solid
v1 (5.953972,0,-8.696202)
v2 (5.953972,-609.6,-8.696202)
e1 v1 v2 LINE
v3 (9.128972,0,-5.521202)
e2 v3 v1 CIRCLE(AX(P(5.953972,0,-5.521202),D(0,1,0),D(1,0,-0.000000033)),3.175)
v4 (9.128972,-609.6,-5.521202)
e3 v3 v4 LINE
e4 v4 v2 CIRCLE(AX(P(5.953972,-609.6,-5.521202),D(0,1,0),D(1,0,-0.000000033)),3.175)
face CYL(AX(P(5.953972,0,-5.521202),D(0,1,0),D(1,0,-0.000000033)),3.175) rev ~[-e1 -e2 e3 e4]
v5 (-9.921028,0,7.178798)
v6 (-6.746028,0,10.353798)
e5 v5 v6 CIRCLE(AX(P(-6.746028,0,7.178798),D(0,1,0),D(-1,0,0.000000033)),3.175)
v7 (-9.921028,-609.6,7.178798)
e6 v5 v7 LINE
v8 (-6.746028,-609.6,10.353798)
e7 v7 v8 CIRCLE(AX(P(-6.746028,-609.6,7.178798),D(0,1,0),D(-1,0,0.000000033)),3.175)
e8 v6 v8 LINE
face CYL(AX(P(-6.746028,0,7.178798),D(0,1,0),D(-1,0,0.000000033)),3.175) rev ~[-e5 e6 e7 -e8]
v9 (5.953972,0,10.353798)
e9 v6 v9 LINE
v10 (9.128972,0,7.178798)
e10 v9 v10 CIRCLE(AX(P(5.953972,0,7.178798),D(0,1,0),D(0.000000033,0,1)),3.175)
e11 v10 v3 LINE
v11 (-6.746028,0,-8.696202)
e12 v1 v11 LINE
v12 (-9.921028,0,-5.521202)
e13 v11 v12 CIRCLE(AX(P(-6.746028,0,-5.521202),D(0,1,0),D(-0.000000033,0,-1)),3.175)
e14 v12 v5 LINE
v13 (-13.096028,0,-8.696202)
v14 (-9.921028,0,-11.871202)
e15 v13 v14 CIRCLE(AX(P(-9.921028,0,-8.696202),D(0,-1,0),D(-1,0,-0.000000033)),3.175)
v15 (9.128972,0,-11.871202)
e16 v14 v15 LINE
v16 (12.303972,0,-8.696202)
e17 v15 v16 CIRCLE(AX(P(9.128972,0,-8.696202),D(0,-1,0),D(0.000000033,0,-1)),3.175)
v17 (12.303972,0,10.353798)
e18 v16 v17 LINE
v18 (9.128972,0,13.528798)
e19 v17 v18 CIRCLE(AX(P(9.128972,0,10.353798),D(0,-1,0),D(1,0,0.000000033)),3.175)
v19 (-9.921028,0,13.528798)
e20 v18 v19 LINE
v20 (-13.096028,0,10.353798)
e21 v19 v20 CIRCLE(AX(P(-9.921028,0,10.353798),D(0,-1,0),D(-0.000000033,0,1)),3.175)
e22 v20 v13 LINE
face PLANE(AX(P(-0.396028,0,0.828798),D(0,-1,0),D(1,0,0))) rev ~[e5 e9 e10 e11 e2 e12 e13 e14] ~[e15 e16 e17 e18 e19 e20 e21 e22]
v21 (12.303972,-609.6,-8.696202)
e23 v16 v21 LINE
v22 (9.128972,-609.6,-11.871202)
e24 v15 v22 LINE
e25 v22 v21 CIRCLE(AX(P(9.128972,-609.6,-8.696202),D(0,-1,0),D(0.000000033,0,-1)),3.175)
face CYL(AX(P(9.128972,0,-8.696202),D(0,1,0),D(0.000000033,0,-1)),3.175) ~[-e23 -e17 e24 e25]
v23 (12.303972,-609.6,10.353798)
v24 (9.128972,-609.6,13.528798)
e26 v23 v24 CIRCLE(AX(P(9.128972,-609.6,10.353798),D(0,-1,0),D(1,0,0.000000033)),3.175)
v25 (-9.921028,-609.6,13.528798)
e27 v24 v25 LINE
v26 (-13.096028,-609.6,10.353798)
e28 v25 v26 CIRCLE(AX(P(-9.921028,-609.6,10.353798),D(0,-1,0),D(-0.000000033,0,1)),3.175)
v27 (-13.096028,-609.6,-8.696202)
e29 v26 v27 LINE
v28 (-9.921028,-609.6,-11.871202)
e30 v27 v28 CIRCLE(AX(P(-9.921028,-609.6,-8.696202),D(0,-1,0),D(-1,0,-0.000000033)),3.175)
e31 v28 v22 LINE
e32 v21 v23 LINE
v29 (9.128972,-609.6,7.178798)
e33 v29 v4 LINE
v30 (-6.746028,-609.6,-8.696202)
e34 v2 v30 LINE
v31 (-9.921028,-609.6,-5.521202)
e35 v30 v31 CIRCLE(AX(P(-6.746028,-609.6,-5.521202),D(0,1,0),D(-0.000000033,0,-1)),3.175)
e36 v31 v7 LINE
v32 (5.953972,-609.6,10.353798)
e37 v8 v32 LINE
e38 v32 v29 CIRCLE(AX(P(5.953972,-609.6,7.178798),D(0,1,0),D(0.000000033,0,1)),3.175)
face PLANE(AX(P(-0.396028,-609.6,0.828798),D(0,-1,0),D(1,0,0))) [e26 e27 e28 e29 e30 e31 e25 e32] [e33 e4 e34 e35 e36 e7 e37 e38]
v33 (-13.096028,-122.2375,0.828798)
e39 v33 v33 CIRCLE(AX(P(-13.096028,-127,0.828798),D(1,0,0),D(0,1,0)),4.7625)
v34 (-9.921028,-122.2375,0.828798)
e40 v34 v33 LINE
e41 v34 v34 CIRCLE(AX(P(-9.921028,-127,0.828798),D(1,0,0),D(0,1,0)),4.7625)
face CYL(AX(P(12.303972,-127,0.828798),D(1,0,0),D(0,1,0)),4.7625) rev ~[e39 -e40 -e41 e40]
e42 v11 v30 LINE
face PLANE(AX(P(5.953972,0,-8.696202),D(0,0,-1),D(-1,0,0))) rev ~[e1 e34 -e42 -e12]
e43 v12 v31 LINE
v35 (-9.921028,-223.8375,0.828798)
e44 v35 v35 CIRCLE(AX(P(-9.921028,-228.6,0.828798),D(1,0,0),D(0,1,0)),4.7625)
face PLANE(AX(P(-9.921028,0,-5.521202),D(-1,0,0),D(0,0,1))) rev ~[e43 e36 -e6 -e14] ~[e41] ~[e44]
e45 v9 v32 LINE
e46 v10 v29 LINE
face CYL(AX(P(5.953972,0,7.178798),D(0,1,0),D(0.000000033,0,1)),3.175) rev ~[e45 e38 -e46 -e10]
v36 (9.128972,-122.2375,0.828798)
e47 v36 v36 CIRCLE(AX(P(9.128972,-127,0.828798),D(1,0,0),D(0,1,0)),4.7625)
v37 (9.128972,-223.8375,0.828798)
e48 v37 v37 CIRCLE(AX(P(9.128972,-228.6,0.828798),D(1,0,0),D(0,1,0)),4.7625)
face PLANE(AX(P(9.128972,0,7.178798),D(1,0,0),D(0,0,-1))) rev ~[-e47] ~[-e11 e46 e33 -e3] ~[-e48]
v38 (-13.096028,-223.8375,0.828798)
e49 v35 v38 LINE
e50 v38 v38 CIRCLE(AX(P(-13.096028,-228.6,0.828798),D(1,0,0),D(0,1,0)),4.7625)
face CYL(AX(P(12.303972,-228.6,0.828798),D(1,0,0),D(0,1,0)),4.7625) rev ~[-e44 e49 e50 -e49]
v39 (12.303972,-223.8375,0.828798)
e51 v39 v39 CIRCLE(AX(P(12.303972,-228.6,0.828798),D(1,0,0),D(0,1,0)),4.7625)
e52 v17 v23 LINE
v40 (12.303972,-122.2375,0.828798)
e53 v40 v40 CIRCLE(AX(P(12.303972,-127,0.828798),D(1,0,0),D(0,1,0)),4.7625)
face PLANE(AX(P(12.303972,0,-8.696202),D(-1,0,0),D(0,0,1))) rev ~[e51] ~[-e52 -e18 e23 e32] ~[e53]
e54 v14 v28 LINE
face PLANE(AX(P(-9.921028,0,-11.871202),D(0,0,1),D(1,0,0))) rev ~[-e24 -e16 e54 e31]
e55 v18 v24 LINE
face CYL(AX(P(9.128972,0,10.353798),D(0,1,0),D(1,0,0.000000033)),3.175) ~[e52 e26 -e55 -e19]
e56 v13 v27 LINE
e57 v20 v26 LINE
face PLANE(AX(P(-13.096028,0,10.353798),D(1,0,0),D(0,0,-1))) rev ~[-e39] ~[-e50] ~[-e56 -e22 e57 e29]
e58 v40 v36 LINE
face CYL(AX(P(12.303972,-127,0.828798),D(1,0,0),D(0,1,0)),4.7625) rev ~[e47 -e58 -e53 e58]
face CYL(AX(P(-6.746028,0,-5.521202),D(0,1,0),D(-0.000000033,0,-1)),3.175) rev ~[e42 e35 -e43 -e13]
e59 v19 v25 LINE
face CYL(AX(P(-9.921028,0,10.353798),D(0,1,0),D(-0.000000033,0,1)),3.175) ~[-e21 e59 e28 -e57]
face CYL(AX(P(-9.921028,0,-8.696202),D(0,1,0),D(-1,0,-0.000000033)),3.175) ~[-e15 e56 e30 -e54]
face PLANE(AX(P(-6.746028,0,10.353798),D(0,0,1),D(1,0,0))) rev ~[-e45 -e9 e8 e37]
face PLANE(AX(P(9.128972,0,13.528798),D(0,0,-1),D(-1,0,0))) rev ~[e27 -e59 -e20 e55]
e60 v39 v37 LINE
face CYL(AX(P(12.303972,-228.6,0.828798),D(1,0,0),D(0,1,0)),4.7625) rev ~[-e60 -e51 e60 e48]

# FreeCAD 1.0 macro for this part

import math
import FreeCAD as App
import Part
import Sketcher
from FreeCAD import Vector
Q = App.Units.Quantity

doc = App.newDocument("Part")
body = doc.addObject("PartDesign::Body", "Body")

# Sketch on XZ plane
sketch1 = doc.addObject("Sketcher::SketchObject", "Sketch")
body.addObject(sketch1)
sketch1.AttachmentSupport = (doc.XZ_Plane, [""])
sketch1.MapMode = "FlatFace"
sketch1.addGeometry(Part.LineSegment(Vector(-9.9, -11.9, 0), Vector(9.1, -11.9, 0)), False)
sketch1.addGeometry(Part.ArcOfCircle(Part.Circle(Vector(9.1, -8.7, 0), Vector(0, 0, 1), 3.2), math.radians(-90), math.radians(0)), False)
sketch1.addGeometry(Part.LineSegment(Vector(12.3, -8.7, 0), Vector(12.3, 10.4, 0)), False)
sketch1.addGeometry(Part.ArcOfCircle(Part.Circle(Vector(9.1, 10.4, 0), Vector(0, 0, 1), 3.2), math.radians(0), math.radians(90)), False)
sketch1.addGeometry(Part.LineSegment(Vector(9.1, 13.5, 0), Vector(-9.9, 13.5, 0)), False)
sketch1.addGeometry(Part.ArcOfCircle(Part.Circle(Vector(-9.9, 10.4, 0), Vector(0, 0, 1), 3.2), math.radians(90), math.radians(180)), False)
sketch1.addGeometry(Part.LineSegment(Vector(-13.1, 10.4, 0), Vector(-13.1, -8.7, 0)), False)
sketch1.addGeometry(Part.ArcOfCircle(Part.Circle(Vector(-9.9, -8.7, 0), Vector(0, 0, 1), 3.2), math.radians(-180), math.radians(-90)), False)
sketch1.addGeometry(Part.LineSegment(Vector(9.1, 7.2, 0), Vector(9.1, -5.5, 0)), False)
sketch1.addGeometry(Part.ArcOfCircle(Part.Circle(Vector(6, -5.5, 0), Vector(0, 0, 1), 3.2), math.radians(-90), math.radians(0)), False)
sketch1.addGeometry(Part.LineSegment(Vector(6, -8.7, 0), Vector(-6.7, -8.7, 0)), False)
sketch1.addGeometry(Part.ArcOfCircle(Part.Circle(Vector(-6.7, -5.5, 0), Vector(0, 0, 1), 3.2), math.radians(-180), math.radians(-90)), False)
sketch1.addGeometry(Part.LineSegment(Vector(-9.9, -5.5, 0), Vector(-9.9, 7.2, 0)), False)
sketch1.addGeometry(Part.ArcOfCircle(Part.Circle(Vector(-6.7, 7.2, 0), Vector(0, 0, 1), 3.2), math.radians(90), math.radians(180)), False)
sketch1.addGeometry(Part.LineSegment(Vector(-6.7, 10.4, 0), Vector(6, 10.4, 0)), False)
sketch1.addGeometry(Part.ArcOfCircle(Part.Circle(Vector(6, 7.2, 0), Vector(0, 0, 1), 3.2), math.radians(0), math.radians(90)), False)
sketch1.addConstraint(Sketcher.Constraint("Tangent", 0, 2, 1, 1))
sketch1.addConstraint(Sketcher.Constraint("Tangent", 1, 2, 2, 1))
sketch1.addConstraint(Sketcher.Constraint("Tangent", 2, 2, 3, 1))
sketch1.addConstraint(Sketcher.Constraint("Tangent", 3, 2, 4, 1))
sketch1.addConstraint(Sketcher.Constraint("Tangent", 4, 2, 5, 1))
sketch1.addConstraint(Sketcher.Constraint("Tangent", 5, 2, 6, 1))
sketch1.addConstraint(Sketcher.Constraint("Tangent", 6, 2, 7, 1))
sketch1.addConstraint(Sketcher.Constraint("Tangent", 7, 2, 0, 1))
sketch1.addConstraint(Sketcher.Constraint("Tangent", 8, 2, 9, 2))
sketch1.addConstraint(Sketcher.Constraint("Tangent", 9, 1, 10, 1))
sketch1.addConstraint(Sketcher.Constraint("Tangent", 10, 2, 11, 2))
sketch1.addConstraint(Sketcher.Constraint("Tangent", 11, 1, 12, 1))
sketch1.addConstraint(Sketcher.Constraint("Tangent", 12, 2, 13, 2))
sketch1.addConstraint(Sketcher.Constraint("Tangent", 13, 1, 14, 1))
sketch1.addConstraint(Sketcher.Constraint("Tangent", 14, 2, 15, 2))
sketch1.addConstraint(Sketcher.Constraint("Tangent", 15, 1, 8, 1))
sketch1.addConstraint(Sketcher.Constraint("Horizontal", 0))
sketch1.addConstraint(Sketcher.Constraint("Vertical", 2))
sketch1.addConstraint(Sketcher.Constraint("Horizontal", 4))
sketch1.addConstraint(Sketcher.Constraint("Vertical", 6))
sketch1.addConstraint(Sketcher.Constraint("Vertical", 8))
sketch1.addConstraint(Sketcher.Constraint("Horizontal", 10))
sketch1.addConstraint(Sketcher.Constraint("Vertical", 12))
sketch1.addConstraint(Sketcher.Constraint("Horizontal", 14))
sketch1.addConstraint(Sketcher.Constraint("Equal", 1, 3))
sketch1.addConstraint(Sketcher.Constraint("Equal", 3, 5))
sketch1.addConstraint(Sketcher.Constraint("Equal", 5, 7))
sketch1.addConstraint(Sketcher.Constraint("Equal", 7, 9))
sketch1.addConstraint(Sketcher.Constraint("Equal", 9, 11))
sketch1.addConstraint(Sketcher.Constraint("Equal", 11, 13))
sketch1.addConstraint(Sketcher.Constraint("Equal", 13, 15))
sketch1.addConstraint(Sketcher.Constraint("Horizontal", 6, 2, 9, 1))
sketch1.addConstraint(Sketcher.Constraint("Horizontal", 5, 2, 13, 1))
sketch1.addConstraint(Sketcher.Constraint("Vertical", 3, 2, 8, 2))
sketch1.addConstraint(Sketcher.Constraint("Vertical", 7, 2, 11, 1))
sketch1.addConstraint(Sketcher.Constraint("Equal", 4, 2))
sketch1.addConstraint(Sketcher.Constraint("DistanceX", 10, 2, 10, 1, Q("0.5 in")))
sketch1.addConstraint(Sketcher.Constraint("Radius", 1, Q("0.125 in")))
sketch1.addConstraint(Sketcher.Constraint("DistanceY", 1, 3, -1, 1, Q("8.696202 mm")))
sketch1.addConstraint(Sketcher.Constraint("DistanceX", -1, 1, 1, 3, Q("9.128972 mm")))
pad1 = doc.addObject("PartDesign::Pad", "Pad")
body.addObject(pad1)
pad1.Profile = sketch1
pad1.Length = Q("24 in")

# Sketch on YZ plane
sketch2 = doc.addObject("Sketcher::SketchObject", "Sketch001")
body.addObject(sketch2)
sketch2.AttachmentSupport = (doc.YZ_Plane, [""])
sketch2.MapMode = "FlatFace"
sketch2.AttachmentOffset = App.Placement(Vector(0, 0, 12.303972), App.Rotation())
sketch2.addGeometry(Part.Circle(Vector(-228.6, 0.8, 0), Vector(0, 0, 1), 4.8), False)
sketch2.addGeometry(Part.Circle(Vector(-127, 0.8, 0), Vector(0, 0, 1), 4.8), False)
sketch2.addConstraint(Sketcher.Constraint("Equal", 0, 1))
sketch2.addConstraint(Sketcher.Constraint("Horizontal", 0, 3, 1, 3))
sketch2.addConstraint(Sketcher.Constraint("Diameter", 0, Q("0.375 in")))
sketch2.addConstraint(Sketcher.Constraint("DistanceX", 0, 3, -1, 1, Q("9 in")))
sketch2.addConstraint(Sketcher.Constraint("DistanceX", 1, 3, -1, 1, Q("5 in")))
sketch2.addConstraint(Sketcher.Constraint("DistanceY", -1, 1, 0, 3, Q("0.828798 mm")))
pocket1 = doc.addObject("PartDesign::Pocket", "Pocket")
body.addObject(pocket1)
pocket1.Profile = sketch2
pocket1.Length = Q("1 in")

doc.recompute()
